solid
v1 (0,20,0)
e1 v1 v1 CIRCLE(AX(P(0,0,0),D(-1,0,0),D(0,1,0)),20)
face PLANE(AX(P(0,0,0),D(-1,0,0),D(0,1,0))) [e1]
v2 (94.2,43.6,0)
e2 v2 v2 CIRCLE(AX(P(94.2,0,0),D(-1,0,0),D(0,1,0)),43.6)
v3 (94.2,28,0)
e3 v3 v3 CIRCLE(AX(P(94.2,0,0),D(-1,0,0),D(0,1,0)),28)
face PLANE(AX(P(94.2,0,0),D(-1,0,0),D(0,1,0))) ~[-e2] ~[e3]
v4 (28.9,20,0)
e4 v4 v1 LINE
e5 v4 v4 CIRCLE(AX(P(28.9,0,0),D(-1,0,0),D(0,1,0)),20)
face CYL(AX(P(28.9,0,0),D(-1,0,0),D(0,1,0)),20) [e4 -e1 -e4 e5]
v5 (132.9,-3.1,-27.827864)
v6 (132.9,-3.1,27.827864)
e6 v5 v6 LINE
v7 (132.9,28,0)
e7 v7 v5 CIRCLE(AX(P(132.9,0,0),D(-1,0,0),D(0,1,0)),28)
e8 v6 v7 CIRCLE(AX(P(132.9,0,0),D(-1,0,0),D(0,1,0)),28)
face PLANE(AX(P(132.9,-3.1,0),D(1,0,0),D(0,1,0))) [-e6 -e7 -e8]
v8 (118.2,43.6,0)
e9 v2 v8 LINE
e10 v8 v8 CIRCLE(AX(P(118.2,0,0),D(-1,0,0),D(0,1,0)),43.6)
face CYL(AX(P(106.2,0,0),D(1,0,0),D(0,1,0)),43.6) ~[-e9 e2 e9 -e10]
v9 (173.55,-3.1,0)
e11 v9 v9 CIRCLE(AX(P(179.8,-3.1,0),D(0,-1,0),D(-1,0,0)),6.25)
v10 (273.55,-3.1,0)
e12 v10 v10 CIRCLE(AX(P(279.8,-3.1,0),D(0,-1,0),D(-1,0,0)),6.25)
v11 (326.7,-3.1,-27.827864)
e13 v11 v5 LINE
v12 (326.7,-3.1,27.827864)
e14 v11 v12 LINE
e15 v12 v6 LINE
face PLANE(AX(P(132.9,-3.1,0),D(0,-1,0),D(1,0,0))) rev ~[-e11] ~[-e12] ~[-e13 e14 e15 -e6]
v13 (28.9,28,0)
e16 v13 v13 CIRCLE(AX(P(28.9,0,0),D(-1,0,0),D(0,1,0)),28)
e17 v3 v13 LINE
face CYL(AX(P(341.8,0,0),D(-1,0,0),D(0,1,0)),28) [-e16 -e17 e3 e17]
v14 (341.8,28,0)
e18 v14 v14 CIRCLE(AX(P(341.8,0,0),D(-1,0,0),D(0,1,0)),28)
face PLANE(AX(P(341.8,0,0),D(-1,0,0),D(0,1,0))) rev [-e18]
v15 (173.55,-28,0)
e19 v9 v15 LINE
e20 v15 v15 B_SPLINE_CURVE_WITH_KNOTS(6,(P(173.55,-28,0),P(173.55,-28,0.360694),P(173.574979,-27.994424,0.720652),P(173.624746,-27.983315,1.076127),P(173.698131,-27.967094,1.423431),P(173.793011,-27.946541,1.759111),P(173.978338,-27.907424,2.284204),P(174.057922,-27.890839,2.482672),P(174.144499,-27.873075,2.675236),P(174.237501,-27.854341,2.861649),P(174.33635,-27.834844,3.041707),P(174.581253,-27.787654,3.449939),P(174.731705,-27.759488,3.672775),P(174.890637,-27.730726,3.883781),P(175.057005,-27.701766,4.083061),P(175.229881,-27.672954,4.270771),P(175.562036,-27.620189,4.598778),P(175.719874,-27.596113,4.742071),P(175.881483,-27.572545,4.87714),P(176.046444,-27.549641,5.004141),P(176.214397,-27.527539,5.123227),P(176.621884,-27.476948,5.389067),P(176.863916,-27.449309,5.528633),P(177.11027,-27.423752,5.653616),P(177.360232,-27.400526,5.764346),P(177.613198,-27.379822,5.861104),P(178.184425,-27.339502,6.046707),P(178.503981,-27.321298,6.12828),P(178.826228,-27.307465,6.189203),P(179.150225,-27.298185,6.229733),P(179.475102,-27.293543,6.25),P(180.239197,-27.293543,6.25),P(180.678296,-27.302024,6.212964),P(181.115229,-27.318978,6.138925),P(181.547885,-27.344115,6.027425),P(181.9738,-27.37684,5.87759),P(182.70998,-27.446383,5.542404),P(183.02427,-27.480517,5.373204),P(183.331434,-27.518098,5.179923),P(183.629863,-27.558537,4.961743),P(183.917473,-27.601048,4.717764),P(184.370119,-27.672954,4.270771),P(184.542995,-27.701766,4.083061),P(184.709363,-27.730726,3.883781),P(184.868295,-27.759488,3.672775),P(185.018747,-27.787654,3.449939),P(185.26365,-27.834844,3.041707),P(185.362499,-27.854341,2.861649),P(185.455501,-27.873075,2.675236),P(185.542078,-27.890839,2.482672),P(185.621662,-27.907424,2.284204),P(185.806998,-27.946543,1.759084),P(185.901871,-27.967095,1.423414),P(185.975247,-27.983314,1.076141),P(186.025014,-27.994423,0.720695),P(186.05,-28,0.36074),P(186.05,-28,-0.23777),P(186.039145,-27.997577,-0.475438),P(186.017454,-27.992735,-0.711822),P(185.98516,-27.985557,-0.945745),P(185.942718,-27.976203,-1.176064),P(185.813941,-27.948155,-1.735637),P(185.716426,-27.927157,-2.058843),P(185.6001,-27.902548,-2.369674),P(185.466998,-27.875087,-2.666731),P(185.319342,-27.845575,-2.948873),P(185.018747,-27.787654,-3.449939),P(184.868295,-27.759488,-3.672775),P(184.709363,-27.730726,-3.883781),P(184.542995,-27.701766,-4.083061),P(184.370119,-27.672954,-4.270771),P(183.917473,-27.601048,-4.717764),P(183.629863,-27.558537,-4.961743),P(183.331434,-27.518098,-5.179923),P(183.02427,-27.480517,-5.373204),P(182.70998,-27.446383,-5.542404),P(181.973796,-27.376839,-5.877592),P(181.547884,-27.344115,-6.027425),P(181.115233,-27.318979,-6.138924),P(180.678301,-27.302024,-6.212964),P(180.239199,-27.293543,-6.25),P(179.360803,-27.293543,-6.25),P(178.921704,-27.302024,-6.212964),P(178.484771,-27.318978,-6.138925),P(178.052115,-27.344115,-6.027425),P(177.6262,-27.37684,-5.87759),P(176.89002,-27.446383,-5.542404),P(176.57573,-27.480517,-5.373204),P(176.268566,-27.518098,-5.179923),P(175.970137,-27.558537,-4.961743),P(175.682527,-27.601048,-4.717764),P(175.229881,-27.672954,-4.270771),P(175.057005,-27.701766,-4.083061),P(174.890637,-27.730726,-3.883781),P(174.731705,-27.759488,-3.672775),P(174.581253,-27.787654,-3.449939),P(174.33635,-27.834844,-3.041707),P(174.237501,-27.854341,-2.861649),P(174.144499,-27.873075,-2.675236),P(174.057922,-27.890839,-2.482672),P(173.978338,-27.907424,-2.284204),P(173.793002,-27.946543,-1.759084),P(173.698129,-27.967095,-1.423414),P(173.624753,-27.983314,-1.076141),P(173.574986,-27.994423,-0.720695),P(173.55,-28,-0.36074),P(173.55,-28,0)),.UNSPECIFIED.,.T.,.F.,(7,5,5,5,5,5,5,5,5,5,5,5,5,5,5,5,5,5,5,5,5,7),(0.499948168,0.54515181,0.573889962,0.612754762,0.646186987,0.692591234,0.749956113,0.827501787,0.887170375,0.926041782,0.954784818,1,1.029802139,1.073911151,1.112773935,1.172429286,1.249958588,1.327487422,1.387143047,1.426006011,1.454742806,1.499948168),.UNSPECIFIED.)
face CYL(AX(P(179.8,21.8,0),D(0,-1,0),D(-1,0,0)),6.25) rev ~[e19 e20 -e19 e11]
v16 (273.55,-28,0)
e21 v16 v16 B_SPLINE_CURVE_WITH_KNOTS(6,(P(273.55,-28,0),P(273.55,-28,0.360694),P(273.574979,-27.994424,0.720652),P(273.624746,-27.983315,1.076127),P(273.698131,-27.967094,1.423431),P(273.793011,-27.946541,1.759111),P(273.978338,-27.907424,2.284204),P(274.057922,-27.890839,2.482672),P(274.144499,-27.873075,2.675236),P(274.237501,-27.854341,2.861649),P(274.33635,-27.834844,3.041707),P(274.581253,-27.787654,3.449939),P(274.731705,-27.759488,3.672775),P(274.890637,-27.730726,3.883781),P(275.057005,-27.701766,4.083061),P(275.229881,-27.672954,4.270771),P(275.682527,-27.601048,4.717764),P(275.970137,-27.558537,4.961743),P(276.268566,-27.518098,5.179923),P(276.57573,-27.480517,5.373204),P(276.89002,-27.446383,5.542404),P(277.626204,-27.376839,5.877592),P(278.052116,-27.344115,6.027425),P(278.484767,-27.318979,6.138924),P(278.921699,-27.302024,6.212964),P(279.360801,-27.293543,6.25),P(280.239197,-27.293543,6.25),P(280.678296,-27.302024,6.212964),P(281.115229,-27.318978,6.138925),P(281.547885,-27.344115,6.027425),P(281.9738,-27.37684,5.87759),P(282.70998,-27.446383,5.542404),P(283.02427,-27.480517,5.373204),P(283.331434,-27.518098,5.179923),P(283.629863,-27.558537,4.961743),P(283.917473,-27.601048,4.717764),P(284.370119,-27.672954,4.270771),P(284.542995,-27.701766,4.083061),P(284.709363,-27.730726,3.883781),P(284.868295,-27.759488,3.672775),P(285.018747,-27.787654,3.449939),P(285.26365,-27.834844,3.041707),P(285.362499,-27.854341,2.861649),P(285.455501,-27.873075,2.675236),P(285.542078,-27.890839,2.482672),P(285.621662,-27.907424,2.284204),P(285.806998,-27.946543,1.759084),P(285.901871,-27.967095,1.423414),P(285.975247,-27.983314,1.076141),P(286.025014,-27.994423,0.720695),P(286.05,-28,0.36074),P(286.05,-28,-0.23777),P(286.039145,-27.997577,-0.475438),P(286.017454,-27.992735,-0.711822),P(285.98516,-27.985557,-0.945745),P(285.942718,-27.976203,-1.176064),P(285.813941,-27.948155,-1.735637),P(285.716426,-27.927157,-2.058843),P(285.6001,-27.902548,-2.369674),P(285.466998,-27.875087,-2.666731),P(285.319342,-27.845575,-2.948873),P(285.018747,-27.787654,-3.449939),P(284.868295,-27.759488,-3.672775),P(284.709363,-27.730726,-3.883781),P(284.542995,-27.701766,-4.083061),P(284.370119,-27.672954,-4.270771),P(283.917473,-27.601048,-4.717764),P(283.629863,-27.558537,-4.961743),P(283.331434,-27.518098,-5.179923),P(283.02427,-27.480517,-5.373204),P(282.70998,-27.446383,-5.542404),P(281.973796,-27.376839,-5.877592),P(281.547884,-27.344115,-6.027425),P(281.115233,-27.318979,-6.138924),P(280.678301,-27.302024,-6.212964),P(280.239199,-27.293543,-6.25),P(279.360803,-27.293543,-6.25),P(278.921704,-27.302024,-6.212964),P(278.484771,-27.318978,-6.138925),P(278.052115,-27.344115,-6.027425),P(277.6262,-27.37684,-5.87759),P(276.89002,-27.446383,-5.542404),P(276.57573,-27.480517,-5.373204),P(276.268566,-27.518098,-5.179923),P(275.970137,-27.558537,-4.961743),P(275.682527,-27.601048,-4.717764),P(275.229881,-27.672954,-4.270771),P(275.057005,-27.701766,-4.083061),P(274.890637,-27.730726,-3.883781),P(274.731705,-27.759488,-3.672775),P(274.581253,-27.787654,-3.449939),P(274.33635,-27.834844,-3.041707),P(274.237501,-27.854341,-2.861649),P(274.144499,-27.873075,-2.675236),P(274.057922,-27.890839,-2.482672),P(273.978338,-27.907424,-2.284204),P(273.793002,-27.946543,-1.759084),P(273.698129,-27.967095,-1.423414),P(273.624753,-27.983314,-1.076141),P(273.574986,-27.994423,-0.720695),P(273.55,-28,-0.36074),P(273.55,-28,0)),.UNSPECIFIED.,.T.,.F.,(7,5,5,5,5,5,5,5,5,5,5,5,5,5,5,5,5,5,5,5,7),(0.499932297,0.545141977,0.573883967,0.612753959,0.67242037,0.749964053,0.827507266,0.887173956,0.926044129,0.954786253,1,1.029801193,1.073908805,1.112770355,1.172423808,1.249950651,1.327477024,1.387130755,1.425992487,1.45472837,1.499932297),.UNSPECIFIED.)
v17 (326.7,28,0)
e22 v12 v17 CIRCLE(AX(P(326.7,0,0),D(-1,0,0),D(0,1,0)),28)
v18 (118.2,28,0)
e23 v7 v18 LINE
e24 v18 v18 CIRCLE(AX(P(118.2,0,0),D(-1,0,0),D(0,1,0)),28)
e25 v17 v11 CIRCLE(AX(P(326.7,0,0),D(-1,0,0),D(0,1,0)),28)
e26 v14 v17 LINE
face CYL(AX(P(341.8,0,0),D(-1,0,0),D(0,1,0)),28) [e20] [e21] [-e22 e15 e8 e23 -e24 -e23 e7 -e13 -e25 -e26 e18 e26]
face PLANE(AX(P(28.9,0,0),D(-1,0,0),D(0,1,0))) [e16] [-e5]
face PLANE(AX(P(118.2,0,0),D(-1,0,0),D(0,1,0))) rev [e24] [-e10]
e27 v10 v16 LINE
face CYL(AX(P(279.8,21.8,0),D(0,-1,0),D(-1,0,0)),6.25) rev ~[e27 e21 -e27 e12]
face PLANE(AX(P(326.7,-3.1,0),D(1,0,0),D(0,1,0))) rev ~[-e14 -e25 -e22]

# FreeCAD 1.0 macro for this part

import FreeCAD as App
import Part
import Sketcher

V = App.Vector


def add_polygon(sketch, points):
    """Adds a closed chain of lines whose ends are joined by coincident constraints."""
    first, n = sketch.GeometryCount, len(points)
    for a, b in zip(points, points[1:] + points[:1]):
        sketch.addGeometry(Part.LineSegment(App.Vector(*a, 0), App.Vector(*b, 0)), False)
    for i in range(n):
        sketch.addConstraint(Sketcher.Constraint("Coincident", first + i, 2, first + (i + 1) % n, 1))

doc = App.newDocument("Part")
body = doc.addObject("PartDesign::Body", "Body")

# Sketch on XY plane
sketch1 = doc.addObject("Sketcher::SketchObject", "Sketch")
body.addObject(sketch1)
sketch1.AttachmentSupport = (doc.XY_Plane, [""])
sketch1.MapMode = "FlatFace"
add_polygon(sketch1, [(0, 20), (0, 0), (342, 0), (342, 28), (118, 28), (118, 44), (94, 44), (94, 28), (29, 28), (29, 20)])  # lines 0-9
sketch1.addConstraint([
    Sketcher.Constraint("Vertical", 0),
    Sketcher.Constraint("Horizontal", 1),
    Sketcher.Constraint("Vertical", 2),
    Sketcher.Constraint("Horizontal", 3),
    Sketcher.Constraint("Vertical", 4),
    Sketcher.Constraint("Horizontal", 5),
    Sketcher.Constraint("Vertical", 6),
    Sketcher.Constraint("Horizontal", 7),
    Sketcher.Constraint("Vertical", 8),
    Sketcher.Constraint("Horizontal", 9),
    Sketcher.Constraint("Coincident", 0, 2, -1, 1),
    Sketcher.Constraint("Horizontal", 3, 2, 6, 2),
    Sketcher.Constraint("DistanceX", 5, 2, 5, 1, 24.0),
    Sketcher.Constraint("DistanceY", 0, 2, 0, 1, 20.0),
    Sketcher.Constraint("DistanceY", 2, 1, 2, 2, 28.0),
    Sketcher.Constraint("DistanceX", 1, 1, 1, 2, 341.8),
    Sketcher.Constraint("DistanceX", 3, 2, 3, 1, 223.6),
    Sketcher.Constraint("DistanceX", 7, 2, 7, 1, 65.3),
    Sketcher.Constraint("DistanceY", 4, 1, 4, 2, 15.6),
])
revolution = doc.addObject("PartDesign::Revolution", "Revolution")
body.addObject(revolution)
revolution.Profile = sketch1
revolution.ReferenceAxis = (sketch1, ["H_Axis"])
revolution.Angle = 360

# Sketch on XY plane
sketch2 = doc.addObject("Sketcher::SketchObject", "Sketch001")
body.addObject(sketch2)
sketch2.AttachmentSupport = (doc.XY_Plane, [""])
sketch2.MapMode = "FlatFace"
add_polygon(sketch2, [(133, 28), (133, -3), (327, -3), (327, 28)])  # lines 0-3
sketch2.addConstraint([
    Sketcher.Constraint("Vertical", 0),
    Sketcher.Constraint("Horizontal", 1),
    Sketcher.Constraint("Vertical", 2),
    Sketcher.Constraint("Horizontal", 3),
    Sketcher.Constraint("DistanceX", 1, 1, 1, 2, 193.8),
    Sketcher.Constraint("DistanceY", 0, 2, 0, 1, 31.1),
    Sketcher.Constraint("DistanceY", -1, 1, 2, 2, 28.0),
    Sketcher.Constraint("DistanceX", -1, 1, 0, 2, 132.9),
])
pocket1 = doc.addObject("PartDesign::Pocket", "Pocket")
body.addObject(pocket1)
pocket1.Profile = sketch2
pocket1.Type = "ThroughAll"
pocket1.Midplane = True

# Sketch on XZ plane
sketch3 = doc.addObject("Sketcher::SketchObject", "Sketch002")
body.addObject(sketch3)
sketch3.AttachmentSupport = (doc.XZ_Plane, [""])
sketch3.MapMode = "FlatFace"
sketch3.AttachmentOffset = App.Placement(V(0, 0, 3.1), App.Rotation())
sketch3.addGeometry([
    Part.Circle(V(180, 0, 0), V(0, 0, 1), 6),
    Part.Circle(V(280, 0, 0), V(0, 0, 1), 6),
], False)
sketch3.addConstraint([
    Sketcher.Constraint("Equal", 0, 1),
    Sketcher.Constraint("PointOnObject", 0, 3, -1),
    Sketcher.Constraint("PointOnObject", 1, 3, -1),
    Sketcher.Constraint("Diameter", 0, 12.5),
    Sketcher.Constraint("DistanceX", 0, 3, 1, 3, 100.0),
    Sketcher.Constraint("DistanceX", -1, 1, 0, 3, 179.8),
])
doc.recompute()
hole = doc.addObject("PartDesign::Hole", "Hole")
body.addObject(hole)
hole.Profile = sketch3
hole.ThreadType = "None"
hole.Diameter = 12.5
hole.DepthType = "Dimension"
hole.Depth = 24.9
hole.DrillPoint = "Flat"
hole.Reversed = True

doc.recompute()
